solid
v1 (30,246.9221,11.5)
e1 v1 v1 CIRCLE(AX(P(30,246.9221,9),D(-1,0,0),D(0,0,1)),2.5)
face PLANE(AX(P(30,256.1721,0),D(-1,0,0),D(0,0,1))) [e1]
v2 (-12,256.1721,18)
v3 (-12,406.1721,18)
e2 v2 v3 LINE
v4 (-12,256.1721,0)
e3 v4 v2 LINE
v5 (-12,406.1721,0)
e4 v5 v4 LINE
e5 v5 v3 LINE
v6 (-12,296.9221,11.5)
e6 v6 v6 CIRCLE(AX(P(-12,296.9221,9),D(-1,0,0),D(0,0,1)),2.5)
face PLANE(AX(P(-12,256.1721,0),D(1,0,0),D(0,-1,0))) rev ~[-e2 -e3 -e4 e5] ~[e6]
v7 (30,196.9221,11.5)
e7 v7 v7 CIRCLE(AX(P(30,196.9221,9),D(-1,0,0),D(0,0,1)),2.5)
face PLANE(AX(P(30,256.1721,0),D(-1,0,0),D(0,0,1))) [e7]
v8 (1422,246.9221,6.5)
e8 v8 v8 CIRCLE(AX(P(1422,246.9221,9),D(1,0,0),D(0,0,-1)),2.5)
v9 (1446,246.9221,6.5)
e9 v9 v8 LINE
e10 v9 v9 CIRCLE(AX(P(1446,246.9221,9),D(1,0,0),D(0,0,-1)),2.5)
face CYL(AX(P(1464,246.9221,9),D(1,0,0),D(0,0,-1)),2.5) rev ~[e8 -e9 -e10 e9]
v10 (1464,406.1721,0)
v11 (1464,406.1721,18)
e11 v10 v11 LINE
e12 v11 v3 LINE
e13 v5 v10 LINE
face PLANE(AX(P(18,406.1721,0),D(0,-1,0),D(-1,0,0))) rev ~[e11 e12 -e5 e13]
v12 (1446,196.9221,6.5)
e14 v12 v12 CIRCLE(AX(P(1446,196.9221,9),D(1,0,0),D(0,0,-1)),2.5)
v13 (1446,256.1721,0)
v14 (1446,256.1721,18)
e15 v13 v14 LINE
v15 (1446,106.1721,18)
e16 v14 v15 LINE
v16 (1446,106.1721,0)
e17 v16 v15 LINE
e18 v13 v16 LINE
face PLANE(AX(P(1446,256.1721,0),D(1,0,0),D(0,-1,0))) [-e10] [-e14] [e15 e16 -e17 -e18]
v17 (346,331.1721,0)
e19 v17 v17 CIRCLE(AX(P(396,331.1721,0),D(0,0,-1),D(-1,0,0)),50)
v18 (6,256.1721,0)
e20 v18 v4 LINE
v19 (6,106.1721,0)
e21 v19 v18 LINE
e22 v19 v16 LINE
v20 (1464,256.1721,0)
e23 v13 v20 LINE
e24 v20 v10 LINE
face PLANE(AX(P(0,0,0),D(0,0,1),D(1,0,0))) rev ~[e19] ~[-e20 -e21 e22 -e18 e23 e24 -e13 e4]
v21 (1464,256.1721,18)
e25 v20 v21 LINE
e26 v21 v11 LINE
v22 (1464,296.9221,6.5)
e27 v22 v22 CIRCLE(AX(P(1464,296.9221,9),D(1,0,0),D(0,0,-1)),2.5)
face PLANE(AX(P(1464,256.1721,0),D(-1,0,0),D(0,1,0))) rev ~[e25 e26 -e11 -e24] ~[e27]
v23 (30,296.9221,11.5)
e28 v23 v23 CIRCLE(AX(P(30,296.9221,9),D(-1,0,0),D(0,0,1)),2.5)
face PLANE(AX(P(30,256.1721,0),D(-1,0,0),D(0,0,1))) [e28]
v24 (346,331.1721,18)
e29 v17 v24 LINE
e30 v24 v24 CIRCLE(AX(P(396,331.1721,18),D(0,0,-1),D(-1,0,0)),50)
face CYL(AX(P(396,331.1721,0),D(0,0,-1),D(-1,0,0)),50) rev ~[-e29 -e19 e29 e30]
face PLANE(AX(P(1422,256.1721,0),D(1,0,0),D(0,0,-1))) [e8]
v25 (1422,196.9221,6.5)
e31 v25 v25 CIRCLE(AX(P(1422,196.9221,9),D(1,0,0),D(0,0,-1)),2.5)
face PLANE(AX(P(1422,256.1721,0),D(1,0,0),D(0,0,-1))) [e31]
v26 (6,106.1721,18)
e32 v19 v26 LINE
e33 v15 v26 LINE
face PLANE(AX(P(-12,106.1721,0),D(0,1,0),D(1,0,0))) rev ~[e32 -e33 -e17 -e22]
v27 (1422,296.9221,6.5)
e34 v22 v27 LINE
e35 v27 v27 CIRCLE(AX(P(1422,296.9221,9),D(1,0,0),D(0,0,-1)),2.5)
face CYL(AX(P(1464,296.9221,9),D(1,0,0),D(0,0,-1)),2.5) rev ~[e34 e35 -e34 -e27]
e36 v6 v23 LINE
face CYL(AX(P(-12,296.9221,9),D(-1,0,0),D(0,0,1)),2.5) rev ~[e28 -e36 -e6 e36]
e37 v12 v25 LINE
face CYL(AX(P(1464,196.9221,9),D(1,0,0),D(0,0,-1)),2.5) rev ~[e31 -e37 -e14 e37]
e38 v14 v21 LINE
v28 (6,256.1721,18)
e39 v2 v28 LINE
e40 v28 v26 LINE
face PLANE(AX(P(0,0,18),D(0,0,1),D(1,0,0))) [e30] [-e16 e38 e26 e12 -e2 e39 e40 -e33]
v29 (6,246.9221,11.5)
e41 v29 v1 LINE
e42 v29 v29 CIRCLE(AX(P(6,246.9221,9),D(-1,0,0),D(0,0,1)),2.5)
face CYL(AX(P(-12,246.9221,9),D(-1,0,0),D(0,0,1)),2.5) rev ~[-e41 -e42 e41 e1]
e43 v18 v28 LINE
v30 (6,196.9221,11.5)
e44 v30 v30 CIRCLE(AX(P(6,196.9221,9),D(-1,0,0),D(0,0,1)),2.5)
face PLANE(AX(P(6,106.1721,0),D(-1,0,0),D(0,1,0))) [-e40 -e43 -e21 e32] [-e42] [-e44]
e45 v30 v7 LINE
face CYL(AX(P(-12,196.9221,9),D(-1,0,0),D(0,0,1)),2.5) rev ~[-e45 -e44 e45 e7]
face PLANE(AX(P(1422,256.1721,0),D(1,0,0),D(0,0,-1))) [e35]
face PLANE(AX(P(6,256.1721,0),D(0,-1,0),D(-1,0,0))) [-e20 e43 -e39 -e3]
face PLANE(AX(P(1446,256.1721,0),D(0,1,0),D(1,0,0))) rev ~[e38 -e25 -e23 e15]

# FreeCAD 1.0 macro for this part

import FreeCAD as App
import Part
import Sketcher
from FreeCAD import Vector
Q = App.Units.Quantity


def add_polygon(sketch, points):
    """Adds a closed chain of lines whose ends are joined by coincident constraints."""
    first, n = sketch.GeometryCount, len(points)
    for a, b in zip(points, points[1:] + points[:1]):
        sketch.addGeometry(Part.LineSegment(App.Vector(*a, 0), App.Vector(*b, 0)), False)
    for i in range(n):
        sketch.addConstraint(Sketcher.Constraint("Coincident", first + i, 2, first + (i + 1) % n, 1))

doc = App.newDocument("Part")
params = doc.addObject("Spreadsheet::Sheet", "Params")
for row, (alias, value) in enumerate([
    ("sketch1_width", "18 mm"),
    ("sketch1_width2", "1476 mm"),
    ("sketch1_height", "150 mm"),
    ("pad1_length", "18 mm"),
    ("sketch2_diameter", "5 mm"),
    ("pocket1_length", "42 mm"),
    ("sketch3_diameter", "5 mm"),
    ("pocket2_length", "42 mm"),
    ("sketch4_width", "18 mm"),
    ("sketch4_height", "150 mm"),
    ("pocket3_length", "208.825 mm"),
    ("sketch5_diameter", "100 mm"),
    ("pocket4_length", "208.825 mm"),
], start=1):
    params.set(f"A{row}", alias)
    params.set(f"B{row}", "=" + value)
    params.setAlias(f"B{row}", alias)

body = doc.addObject("PartDesign::Body", "Body")

# Sketch on XY plane
sketch1 = body.newObject("Sketcher::SketchObject", "Sketch")
sketch1.AttachmentSupport = (doc.getObject("XY_Plane"), [""])
sketch1.MapMode = "FlatFace"
add_polygon(sketch1, [(-12, 106.1721), (1446, 106.1721), (1446, 256.1721), (1464, 256.1721), (1464, 406.1721), (-12, 406.1721)])  # lines 0-5
sketch1.addConstraint(Sketcher.Constraint("Horizontal", 0))
sketch1.addConstraint(Sketcher.Constraint("Vertical", 1))
sketch1.addConstraint(Sketcher.Constraint("Horizontal", 2))
sketch1.addConstraint(Sketcher.Constraint("Vertical", 3))
sketch1.addConstraint(Sketcher.Constraint("Horizontal", 4))
sketch1.addConstraint(Sketcher.Constraint("Vertical", 5))
sketch1.addConstraint(Sketcher.Constraint("Equal", 1, 3))
sketch1.addConstraint(Sketcher.Constraint("DistanceX", 2, 1, 2, 2, Q("18 mm")))
sketch1.addConstraint(Sketcher.Constraint("DistanceX", 4, 2, 4, 1, Q("1476 mm")))
sketch1.addConstraint(Sketcher.Constraint("DistanceY", 1, 1, 1, 2, Q("150 mm")))
sketch1.addConstraint(Sketcher.Constraint("DistanceX", -1, 1, 0, 2, Q("1446 mm")))
sketch1.addConstraint(Sketcher.Constraint("DistanceY", -1, 1, 0, 2, Q("106.172 mm")))
sketch1.setExpression("Constraints[13]", "Params.sketch1_width")
sketch1.setExpression("Constraints[14]", "Params.sketch1_width2")
sketch1.setExpression("Constraints[15]", "Params.sketch1_height")
pad1 = body.newObject("PartDesign::Pad", "Pad")
pad1.Profile = sketch1
pad1.setExpression("Length", "Params.pad1_length")

# Sketch on YZ plane
sketch2 = body.newObject("Sketcher::SketchObject", "Sketch001")
sketch2.AttachmentSupport = (doc.getObject("YZ_Plane"), [""])
sketch2.MapMode = "FlatFace"
sketch2.AttachmentOffset = App.Placement(Vector(0, 0, 1464), App.Rotation())
sketch2.addGeometry(Part.Circle(Vector(296.9221, 9, 0), Vector(0, 0, 1), 2.5), False)
sketch2.addGeometry(Part.Circle(Vector(246.9221, 9, 0), Vector(0, 0, 1), 2.5), False)
sketch2.addGeometry(Part.Circle(Vector(196.9221, 9, 0), Vector(0, 0, 1), 2.5), False)
sketch2.addConstraint(Sketcher.Constraint("Equal", 0, 1))
sketch2.addConstraint(Sketcher.Constraint("Equal", 1, 2))
sketch2.addConstraint(Sketcher.Constraint("Horizontal", 0, 3, 1, 3))
sketch2.addConstraint(Sketcher.Constraint("Horizontal", 1, 3, 2, 3))
sketch2.addConstraint(Sketcher.Constraint("Diameter", 0, Q("5 mm")))
sketch2.addConstraint(Sketcher.Constraint("DistanceY", -1, 1, 0, 3, Q("9 mm")))
sketch2.addConstraint(Sketcher.Constraint("DistanceX", 1, 3, 0, 3, Q("50 mm")))
sketch2.addConstraint(Sketcher.Constraint("DistanceX", 2, 3, 1, 3, Q("50 mm")))
sketch2.addConstraint(Sketcher.Constraint("DistanceX", -1, 1, 0, 3, Q("296.922 mm")))
sketch2.setExpression("Constraints[4]", "Params.sketch2_diameter")
pocket1 = body.newObject("PartDesign::Pocket", "Pocket")
pocket1.Profile = sketch2
pocket1.setExpression("Length", "Params.pocket1_length")

# Sketch on YZ plane
sketch3 = body.newObject("Sketcher::SketchObject", "Sketch002")
sketch3.AttachmentSupport = (doc.getObject("YZ_Plane"), [""])
sketch3.MapMode = "FlatFace"
sketch3.AttachmentOffset = App.Placement(Vector(0, 0, -12), App.Rotation())
sketch3.addGeometry(Part.Circle(Vector(196.9221, 9, 0), Vector(0, 0, 1), 2.5), False)
sketch3.addGeometry(Part.Circle(Vector(296.9221, 9, 0), Vector(0, 0, 1), 2.5), False)
sketch3.addGeometry(Part.Circle(Vector(246.9221, 9, 0), Vector(0, 0, 1), 2.5), False)
sketch3.addConstraint(Sketcher.Constraint("Equal", 0, 1))
sketch3.addConstraint(Sketcher.Constraint("Equal", 1, 2))
sketch3.addConstraint(Sketcher.Constraint("Horizontal", 0, 3, 1, 3))
sketch3.addConstraint(Sketcher.Constraint("Horizontal", 1, 3, 2, 3))
sketch3.addConstraint(Sketcher.Constraint("Diameter", 0, Q("5 mm")))
sketch3.addConstraint(Sketcher.Constraint("DistanceY", -1, 1, 0, 3, Q("9 mm")))
sketch3.addConstraint(Sketcher.Constraint("DistanceX", 0, 3, 1, 3, Q("100 mm")))
sketch3.addConstraint(Sketcher.Constraint("DistanceX", 0, 3, 2, 3, Q("50 mm")))
sketch3.addConstraint(Sketcher.Constraint("DistanceX", -1, 1, 0, 3, Q("196.922 mm")))
sketch3.setExpression("Constraints[4]", "Params.sketch3_diameter")
pocket2 = body.newObject("PartDesign::Pocket", "Pocket001")
pocket2.Profile = sketch3
pocket2.setExpression("Length", "Params.pocket2_length")
pocket2.Reversed = True

# Sketch on XY plane
sketch4 = body.newObject("Sketcher::SketchObject", "Sketch003")
sketch4.AttachmentSupport = (doc.getObject("XY_Plane"), [""])
sketch4.MapMode = "FlatFace"
add_polygon(sketch4, [(6, 106.1721), (-12, 106.1721), (-12, 256.1721), (6, 256.1721)])  # lines 0-3
sketch4.addConstraint(Sketcher.Constraint("Horizontal", 0))
sketch4.addConstraint(Sketcher.Constraint("Vertical", 1))
sketch4.addConstraint(Sketcher.Constraint("Horizontal", 2))
sketch4.addConstraint(Sketcher.Constraint("Vertical", 3))
sketch4.addConstraint(Sketcher.Constraint("DistanceX", 0, 2, 0, 1, Q("18 mm")))
sketch4.addConstraint(Sketcher.Constraint("DistanceY", 1, 1, 1, 2, Q("150 mm")))
sketch4.addConstraint(Sketcher.Constraint("DistanceX", 0, 2, -1, 1, Q("12 mm")))
sketch4.addConstraint(Sketcher.Constraint("DistanceY", -1, 1, 0, 2, Q("106.172 mm")))
sketch4.setExpression("Constraints[8]", "Params.sketch4_width")
sketch4.setExpression("Constraints[9]", "Params.sketch4_height")
pocket3 = body.newObject("PartDesign::Pocket", "Pocket002")
pocket3.Profile = sketch4
pocket3.setExpression("Length", "Params.pocket3_length")
pocket3.Reversed = True

# Sketch on XY plane
sketch5 = body.newObject("Sketcher::SketchObject", "Sketch004")
sketch5.AttachmentSupport = (doc.getObject("XY_Plane"), [""])
sketch5.MapMode = "FlatFace"
sketch5.addGeometry(Part.Circle(Vector(396, 331.1721, 0), Vector(0, 0, 1), 50), False)
sketch5.addConstraint(Sketcher.Constraint("Diameter", 0, Q("100 mm")))
sketch5.addConstraint(Sketcher.Constraint("DistanceX", -1, 1, 0, 3, Q("396 mm")))
sketch5.addConstraint(Sketcher.Constraint("DistanceY", -1, 1, 0, 3, Q("331.172 mm")))
sketch5.setExpression("Constraints[0]", "Params.sketch5_diameter")
pocket4 = body.newObject("PartDesign::Pocket", "Pocket003")
pocket4.Profile = sketch5
pocket4.setExpression("Length", "Params.pocket4_length")
pocket4.Reversed = True

doc.recompute()
